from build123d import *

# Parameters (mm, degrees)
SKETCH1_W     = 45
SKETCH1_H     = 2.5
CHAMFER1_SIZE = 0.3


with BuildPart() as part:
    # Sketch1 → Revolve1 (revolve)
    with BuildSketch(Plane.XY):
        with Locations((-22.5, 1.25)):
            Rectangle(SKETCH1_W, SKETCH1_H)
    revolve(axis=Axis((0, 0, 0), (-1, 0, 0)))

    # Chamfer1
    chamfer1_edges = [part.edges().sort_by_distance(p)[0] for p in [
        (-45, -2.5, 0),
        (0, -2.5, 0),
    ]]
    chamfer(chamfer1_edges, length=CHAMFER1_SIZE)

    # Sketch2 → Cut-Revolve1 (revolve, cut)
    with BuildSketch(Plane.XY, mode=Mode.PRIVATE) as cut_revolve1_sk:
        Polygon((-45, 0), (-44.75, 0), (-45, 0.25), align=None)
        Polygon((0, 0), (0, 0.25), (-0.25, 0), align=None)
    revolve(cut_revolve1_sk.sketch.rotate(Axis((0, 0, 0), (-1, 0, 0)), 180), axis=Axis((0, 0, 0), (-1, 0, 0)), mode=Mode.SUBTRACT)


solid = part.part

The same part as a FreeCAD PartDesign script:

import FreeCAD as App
import Part
import Sketcher
Q = App.Units.Quantity


def edges_at(feature, points):
    """Names of the edges that pass closest to the given points."""
    edges = feature.Shape.Edges
    near = lambda p: min(range(len(edges)), key=lambda i: edges[i].distToShape(Part.Vertex(*p))[0])
    return sorted({f"Edge{near(p) + 1}" for p in points})


def add_polygon(sketch, points):
    """Adds a closed chain of lines whose ends are joined by coincident constraints."""
    first, n = sketch.GeometryCount, len(points)
    for a, b in zip(points, points[1:] + points[:1]):
        sketch.addGeometry(Part.LineSegment(App.Vector(*a, 0), App.Vector(*b, 0)), False)
    for i in range(n):
        sketch.addConstraint(Sketcher.Constraint("Coincident", first + i, 2, first + (i + 1) % n, 1))

doc = App.newDocument("Part")
body = doc.addObject("PartDesign::Body", "Body")

# Sketch on XY plane
sketch1 = doc.addObject("Sketcher::SketchObject", "Sketch")
body.addObject(sketch1)
sketch1.AttachmentSupport = (doc.XY_Plane, [""])
sketch1.MapMode = "FlatFace"
add_polygon(sketch1, [(-45, 2.5), (-45, 0), (0, 0), (0, 2.5)])  # lines 0-3
sketch1.addConstraint([
    Sketcher.Constraint("Vertical", 0),
    Sketcher.Constraint("Horizontal", 1),
    Sketcher.Constraint("Vertical", 2),
    Sketcher.Constraint("Horizontal", 3),
    Sketcher.Constraint("Coincident", 1, 2, -1, 1),
    Sketcher.Constraint("DistanceX", 1, 1, 1, 2, Q("45 mm")),
    Sketcher.Constraint("DistanceY", 0, 2, 0, 1, Q("2.5 mm")),
])
revolution = doc.addObject("PartDesign::Revolution", "Revolution")
body.addObject(revolution)
revolution.Profile = sketch1
revolution.ReferenceAxis = (sketch1, ["H_Axis"])
revolution.Angle = 360
doc.recompute()

chamfer = doc.addObject("PartDesign::Chamfer", "Chamfer")
body.addObject(chamfer)
chamfer.Base = (revolution, edges_at(revolution, [(-45, -2.5, 0), (0, -2.5, 0)]))
chamfer.Size = 0.3

# Sketch on XY plane
sketch2 = doc.addObject("Sketcher::SketchObject", "Sketch001")
body.addObject(sketch2)
sketch2.AttachmentSupport = (doc.XY_Plane, [""])
sketch2.MapMode = "FlatFace"
add_polygon(sketch2, [(-45, 0), (-44.75, 0), (-45, 0.25)])  # lines 0-2
add_polygon(sketch2, [(0, 0), (0, 0.25), (-0.25, 0)])  # lines 3-5
sketch2.addConstraint([
    Sketcher.Constraint("Horizontal", 0),
    Sketcher.Constraint("Vertical", 2),
    Sketcher.Constraint("Vertical", 3),
    Sketcher.Constraint("Horizontal", 5),
    Sketcher.Constraint("Coincident", 5, 2, -1, 1),
    Sketcher.Constraint("PointOnObject", 0, 2, -1),
    Sketcher.Constraint("Perpendicular", 1, 4),
    Sketcher.Constraint("Horizontal", 1, 2, 3, 2),
    Sketcher.Constraint("Equal", 0, 5),
    Sketcher.Constraint("DistanceX", 1, 2, -1, 1, Q("45 mm")),
    Sketcher.Constraint("DistanceX", 0, 1, 0, 2, Q("0.25 mm")),
])
groove = doc.addObject("PartDesign::Groove", "Groove")
body.addObject(groove)
groove.Profile = sketch2
groove.ReferenceAxis = (sketch2, ["H_Axis"])
groove.Angle = 360

doc.recompute()
